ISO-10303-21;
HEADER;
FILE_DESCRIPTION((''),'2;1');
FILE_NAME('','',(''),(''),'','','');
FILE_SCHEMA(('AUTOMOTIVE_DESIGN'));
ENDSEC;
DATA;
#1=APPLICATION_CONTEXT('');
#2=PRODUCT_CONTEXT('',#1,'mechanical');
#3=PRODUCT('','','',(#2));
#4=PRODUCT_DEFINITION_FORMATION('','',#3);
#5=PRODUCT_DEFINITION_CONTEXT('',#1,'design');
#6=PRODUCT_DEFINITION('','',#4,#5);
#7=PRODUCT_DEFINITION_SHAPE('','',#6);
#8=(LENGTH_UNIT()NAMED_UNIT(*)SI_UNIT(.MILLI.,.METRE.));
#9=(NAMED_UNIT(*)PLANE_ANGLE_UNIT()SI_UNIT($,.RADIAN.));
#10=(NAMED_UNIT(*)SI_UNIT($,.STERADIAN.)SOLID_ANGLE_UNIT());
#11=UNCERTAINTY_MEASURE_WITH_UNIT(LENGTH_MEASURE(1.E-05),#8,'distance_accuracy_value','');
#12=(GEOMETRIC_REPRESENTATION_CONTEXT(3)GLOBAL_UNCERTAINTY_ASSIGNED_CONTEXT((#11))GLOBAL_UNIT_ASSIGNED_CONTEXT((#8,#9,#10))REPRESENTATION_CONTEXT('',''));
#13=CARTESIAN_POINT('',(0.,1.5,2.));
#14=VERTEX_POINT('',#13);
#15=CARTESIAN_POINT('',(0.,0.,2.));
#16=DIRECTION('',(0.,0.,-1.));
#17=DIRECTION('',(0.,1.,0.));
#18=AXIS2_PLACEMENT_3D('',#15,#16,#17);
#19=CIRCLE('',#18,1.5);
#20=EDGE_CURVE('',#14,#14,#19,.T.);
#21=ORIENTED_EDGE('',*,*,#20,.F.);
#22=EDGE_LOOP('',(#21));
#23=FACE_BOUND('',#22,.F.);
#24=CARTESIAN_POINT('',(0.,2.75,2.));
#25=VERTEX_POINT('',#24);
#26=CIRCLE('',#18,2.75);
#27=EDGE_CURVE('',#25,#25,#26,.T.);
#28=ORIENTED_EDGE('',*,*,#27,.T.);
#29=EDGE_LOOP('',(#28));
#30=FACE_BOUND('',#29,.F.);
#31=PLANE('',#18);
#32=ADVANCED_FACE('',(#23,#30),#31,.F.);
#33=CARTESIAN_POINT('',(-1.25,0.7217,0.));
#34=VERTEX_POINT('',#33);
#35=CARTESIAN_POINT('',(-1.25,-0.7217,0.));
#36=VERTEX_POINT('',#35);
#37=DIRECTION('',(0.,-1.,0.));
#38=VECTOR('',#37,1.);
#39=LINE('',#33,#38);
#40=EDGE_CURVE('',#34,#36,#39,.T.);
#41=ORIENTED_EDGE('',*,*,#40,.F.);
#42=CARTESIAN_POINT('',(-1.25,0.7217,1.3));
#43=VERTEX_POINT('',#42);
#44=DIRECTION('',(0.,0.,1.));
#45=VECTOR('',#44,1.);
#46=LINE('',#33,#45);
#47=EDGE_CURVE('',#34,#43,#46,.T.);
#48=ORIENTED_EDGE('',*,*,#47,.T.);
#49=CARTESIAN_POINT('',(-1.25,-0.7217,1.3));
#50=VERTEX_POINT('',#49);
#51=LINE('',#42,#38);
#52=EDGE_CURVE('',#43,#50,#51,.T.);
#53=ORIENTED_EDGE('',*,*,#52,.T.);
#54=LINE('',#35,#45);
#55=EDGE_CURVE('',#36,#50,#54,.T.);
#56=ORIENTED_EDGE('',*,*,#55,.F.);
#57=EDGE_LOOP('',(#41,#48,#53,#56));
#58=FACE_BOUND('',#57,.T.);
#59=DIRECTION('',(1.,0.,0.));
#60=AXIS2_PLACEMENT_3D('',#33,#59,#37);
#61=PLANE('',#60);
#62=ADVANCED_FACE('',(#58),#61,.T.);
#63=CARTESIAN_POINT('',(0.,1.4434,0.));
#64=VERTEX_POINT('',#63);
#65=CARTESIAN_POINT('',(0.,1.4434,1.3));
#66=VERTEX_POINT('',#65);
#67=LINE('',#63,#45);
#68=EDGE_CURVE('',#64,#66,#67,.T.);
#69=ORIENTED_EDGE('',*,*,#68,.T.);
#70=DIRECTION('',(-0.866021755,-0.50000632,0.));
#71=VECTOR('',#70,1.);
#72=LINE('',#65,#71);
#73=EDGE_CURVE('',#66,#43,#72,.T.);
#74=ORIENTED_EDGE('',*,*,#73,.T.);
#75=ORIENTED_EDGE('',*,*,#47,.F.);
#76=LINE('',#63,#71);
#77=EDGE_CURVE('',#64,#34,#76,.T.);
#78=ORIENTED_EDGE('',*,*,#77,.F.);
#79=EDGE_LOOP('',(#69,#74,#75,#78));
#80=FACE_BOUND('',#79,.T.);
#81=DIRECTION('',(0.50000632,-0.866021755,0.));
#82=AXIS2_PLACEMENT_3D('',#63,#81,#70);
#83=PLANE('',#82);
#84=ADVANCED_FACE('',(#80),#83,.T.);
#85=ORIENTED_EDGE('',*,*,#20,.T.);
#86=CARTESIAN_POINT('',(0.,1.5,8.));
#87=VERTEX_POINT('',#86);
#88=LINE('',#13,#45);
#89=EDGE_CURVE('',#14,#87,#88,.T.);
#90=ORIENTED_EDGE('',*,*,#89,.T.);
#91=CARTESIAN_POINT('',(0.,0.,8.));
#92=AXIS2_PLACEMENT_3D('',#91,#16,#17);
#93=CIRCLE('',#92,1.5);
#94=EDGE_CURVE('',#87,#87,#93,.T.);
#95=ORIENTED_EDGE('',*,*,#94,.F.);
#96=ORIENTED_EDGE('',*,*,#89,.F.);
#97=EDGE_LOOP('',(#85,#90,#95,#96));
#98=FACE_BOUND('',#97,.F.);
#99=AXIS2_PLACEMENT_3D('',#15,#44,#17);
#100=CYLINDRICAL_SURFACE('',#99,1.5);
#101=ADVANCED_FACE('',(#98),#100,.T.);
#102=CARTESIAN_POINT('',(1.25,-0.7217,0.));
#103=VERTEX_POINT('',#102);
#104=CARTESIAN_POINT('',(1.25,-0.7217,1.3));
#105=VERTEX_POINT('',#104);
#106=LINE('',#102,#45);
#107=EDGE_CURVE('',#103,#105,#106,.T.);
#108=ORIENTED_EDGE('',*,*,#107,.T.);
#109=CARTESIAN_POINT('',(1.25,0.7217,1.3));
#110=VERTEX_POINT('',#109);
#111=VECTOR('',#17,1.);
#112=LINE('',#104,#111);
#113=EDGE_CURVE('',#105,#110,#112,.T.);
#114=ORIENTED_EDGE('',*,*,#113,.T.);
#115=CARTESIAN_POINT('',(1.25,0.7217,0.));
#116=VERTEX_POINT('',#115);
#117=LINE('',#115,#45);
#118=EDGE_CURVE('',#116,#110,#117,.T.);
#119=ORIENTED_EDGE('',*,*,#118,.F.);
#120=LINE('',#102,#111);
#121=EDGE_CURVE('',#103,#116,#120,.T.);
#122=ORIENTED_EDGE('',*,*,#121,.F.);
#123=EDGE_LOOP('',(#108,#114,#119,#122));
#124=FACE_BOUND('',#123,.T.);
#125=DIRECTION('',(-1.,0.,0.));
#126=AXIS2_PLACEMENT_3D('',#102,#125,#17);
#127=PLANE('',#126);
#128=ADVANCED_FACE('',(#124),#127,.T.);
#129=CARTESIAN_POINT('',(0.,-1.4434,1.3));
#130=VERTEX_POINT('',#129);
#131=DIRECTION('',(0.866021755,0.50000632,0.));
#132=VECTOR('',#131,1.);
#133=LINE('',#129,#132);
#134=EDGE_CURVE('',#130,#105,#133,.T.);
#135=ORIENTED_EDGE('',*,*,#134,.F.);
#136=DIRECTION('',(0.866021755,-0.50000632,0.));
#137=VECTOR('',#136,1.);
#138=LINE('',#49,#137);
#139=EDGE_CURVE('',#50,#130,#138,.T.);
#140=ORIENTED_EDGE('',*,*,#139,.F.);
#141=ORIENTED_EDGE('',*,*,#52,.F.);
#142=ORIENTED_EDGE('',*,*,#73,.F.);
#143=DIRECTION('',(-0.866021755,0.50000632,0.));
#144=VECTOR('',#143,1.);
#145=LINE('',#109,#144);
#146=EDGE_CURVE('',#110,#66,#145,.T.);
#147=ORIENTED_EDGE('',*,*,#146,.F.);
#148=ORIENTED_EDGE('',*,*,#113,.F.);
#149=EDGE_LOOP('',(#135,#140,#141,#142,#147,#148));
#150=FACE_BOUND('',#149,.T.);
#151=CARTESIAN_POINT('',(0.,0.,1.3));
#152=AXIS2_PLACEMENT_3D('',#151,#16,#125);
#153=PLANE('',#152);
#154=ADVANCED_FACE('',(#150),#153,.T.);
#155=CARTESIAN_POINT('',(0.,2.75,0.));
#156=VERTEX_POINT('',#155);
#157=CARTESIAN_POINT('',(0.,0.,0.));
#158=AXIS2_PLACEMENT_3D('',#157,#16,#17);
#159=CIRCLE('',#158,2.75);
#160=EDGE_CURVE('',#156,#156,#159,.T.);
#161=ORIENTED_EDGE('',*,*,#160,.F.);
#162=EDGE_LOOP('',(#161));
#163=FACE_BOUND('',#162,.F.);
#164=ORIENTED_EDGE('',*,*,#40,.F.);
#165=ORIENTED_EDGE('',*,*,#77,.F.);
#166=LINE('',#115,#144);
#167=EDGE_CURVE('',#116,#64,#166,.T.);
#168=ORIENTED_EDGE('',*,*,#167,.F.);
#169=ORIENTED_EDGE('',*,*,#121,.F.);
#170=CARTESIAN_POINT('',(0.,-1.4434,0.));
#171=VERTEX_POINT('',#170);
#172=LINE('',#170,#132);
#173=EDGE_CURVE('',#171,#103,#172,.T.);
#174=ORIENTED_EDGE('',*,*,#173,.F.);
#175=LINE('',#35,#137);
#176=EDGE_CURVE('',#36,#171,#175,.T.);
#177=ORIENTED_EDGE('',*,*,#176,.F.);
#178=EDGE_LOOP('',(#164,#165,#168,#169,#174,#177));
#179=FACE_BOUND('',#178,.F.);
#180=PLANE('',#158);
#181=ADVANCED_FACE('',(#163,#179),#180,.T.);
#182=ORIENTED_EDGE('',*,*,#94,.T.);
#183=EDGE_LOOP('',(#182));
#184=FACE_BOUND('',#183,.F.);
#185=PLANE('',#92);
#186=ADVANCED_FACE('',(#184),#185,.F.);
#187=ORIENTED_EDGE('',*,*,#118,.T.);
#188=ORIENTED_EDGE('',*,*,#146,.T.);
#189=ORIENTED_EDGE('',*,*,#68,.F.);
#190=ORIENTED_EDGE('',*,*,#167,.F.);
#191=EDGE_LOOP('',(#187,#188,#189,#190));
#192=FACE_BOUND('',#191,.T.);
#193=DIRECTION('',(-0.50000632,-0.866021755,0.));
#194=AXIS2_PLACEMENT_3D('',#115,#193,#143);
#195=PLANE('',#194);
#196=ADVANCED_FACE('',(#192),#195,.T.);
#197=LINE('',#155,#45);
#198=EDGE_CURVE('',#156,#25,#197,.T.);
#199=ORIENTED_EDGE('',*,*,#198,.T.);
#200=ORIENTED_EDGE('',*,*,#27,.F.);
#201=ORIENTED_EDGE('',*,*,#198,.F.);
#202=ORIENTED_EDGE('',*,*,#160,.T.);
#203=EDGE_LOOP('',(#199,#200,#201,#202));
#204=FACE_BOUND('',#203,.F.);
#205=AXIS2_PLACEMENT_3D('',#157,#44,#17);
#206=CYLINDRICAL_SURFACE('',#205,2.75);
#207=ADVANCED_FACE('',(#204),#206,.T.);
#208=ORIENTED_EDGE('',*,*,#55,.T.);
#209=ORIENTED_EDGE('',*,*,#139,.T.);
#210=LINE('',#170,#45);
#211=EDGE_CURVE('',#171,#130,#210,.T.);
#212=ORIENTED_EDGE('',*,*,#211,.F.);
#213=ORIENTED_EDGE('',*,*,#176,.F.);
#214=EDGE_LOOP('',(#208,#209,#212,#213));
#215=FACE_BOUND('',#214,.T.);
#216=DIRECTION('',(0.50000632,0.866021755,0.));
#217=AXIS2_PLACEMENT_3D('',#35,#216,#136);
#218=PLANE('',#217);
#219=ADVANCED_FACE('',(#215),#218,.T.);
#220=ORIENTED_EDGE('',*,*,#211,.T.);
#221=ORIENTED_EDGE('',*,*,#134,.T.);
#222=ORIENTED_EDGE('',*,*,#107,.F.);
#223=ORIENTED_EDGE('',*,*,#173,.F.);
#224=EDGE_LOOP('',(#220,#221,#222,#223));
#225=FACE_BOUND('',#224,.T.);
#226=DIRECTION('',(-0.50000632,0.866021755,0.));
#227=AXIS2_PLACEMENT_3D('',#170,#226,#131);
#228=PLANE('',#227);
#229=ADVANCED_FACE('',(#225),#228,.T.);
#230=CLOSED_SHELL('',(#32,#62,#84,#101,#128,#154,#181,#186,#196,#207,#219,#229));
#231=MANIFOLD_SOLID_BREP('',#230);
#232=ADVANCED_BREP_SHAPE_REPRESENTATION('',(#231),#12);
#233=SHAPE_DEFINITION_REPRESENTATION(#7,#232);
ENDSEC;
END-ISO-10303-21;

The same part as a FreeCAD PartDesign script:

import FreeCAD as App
import Part
import Sketcher
from FreeCAD import Vector
Q = App.Units.Quantity


def add_polygon(sketch, points):
    """Adds a closed chain of lines whose ends are joined by coincident constraints."""
    first, n = sketch.GeometryCount, len(points)
    for a, b in zip(points, points[1:] + points[:1]):
        sketch.addGeometry(Part.LineSegment(App.Vector(*a, 0), App.Vector(*b, 0)), False)
    for i in range(n):
        sketch.addConstraint(Sketcher.Constraint("Coincident", first + i, 2, first + (i + 1) % n, 1))

doc = App.newDocument("Part")
body = doc.addObject("PartDesign::Body", "Body")

# Sketch on YZ plane
sketch1 = body.newObject("Sketcher::SketchObject", "Sketch")
sketch1.AttachmentSupport = (doc.getObject("YZ_Plane"), [""])
sketch1.MapMode = "FlatFace"
add_polygon(sketch1, [(1.5, 8), (0, 8), (0, 0), (2.8, 0), (2.8, 2), (1.5, 2)])  # lines 0-5
sketch1.addConstraint([
    Sketcher.Constraint("Horizontal", 0),
    Sketcher.Constraint("Vertical", 1),
    Sketcher.Constraint("Horizontal", 2),
    Sketcher.Constraint("Vertical", 3),
    Sketcher.Constraint("Horizontal", 4),
    Sketcher.Constraint("Vertical", 5),
    Sketcher.Constraint("Coincident", 1, 2, -1, 1),
    Sketcher.Constraint("DistanceY", 3, 1, 3, 2, Q("2 mm")),
    Sketcher.Constraint("DistanceY", 5, 1, 5, 2, Q("6 mm")),
    Sketcher.Constraint("DistanceX", 0, 2, 0, 1, Q("1.5 mm")),
    Sketcher.Constraint("DistanceX", 2, 1, 2, 2, Q("2.75 mm")),
])
revolution = body.newObject("PartDesign::Revolution", "Revolution")
revolution.Profile = sketch1
revolution.ReferenceAxis = (sketch1, ["V_Axis"])
revolution.Angle = 360

# Sketch on XY plane
sketch2 = body.newObject("Sketcher::SketchObject", "Sketch001")
sketch2.AttachmentSupport = (doc.getObject("XY_Plane"), [""])
sketch2.MapMode = "FlatFace"
add_polygon(sketch2, [(-1.2, 0.7), (0, 1.4), (1.2, 0.7), (1.2, -0.7), (0, -1.4), (-1.2, -0.7)])  # lines 0-5
sketch2.addConstraint([
    Sketcher.Constraint("Vertical", 2),
    Sketcher.Constraint("Vertical", 5),
    Sketcher.Constraint("Symmetric", 0, 2, 3, 2, -1, 1),
    Sketcher.Constraint("Symmetric", 1, 2, 4, 2, -1, 1),
    Sketcher.Constraint("PointOnObject", 0, 2, -2),
    Sketcher.Constraint("Parallel", 0, 3),
    Sketcher.Constraint("Horizontal", 2, 2, 4, 2),
    Sketcher.Constraint("DistanceX", 4, 2, 2, 2, Q("2.5 mm")),
    Sketcher.Constraint("Angle", 0, Q("30.0004 deg")),
    Sketcher.Constraint("DistanceY", 2, 2, 2, 1, Q("1.4434 mm")),
])
pocket1 = body.newObject("PartDesign::Pocket", "Pocket")
pocket1.Profile = sketch2
pocket1.Length = 1.3
pocket1.Reversed = True

doc.recompute()
